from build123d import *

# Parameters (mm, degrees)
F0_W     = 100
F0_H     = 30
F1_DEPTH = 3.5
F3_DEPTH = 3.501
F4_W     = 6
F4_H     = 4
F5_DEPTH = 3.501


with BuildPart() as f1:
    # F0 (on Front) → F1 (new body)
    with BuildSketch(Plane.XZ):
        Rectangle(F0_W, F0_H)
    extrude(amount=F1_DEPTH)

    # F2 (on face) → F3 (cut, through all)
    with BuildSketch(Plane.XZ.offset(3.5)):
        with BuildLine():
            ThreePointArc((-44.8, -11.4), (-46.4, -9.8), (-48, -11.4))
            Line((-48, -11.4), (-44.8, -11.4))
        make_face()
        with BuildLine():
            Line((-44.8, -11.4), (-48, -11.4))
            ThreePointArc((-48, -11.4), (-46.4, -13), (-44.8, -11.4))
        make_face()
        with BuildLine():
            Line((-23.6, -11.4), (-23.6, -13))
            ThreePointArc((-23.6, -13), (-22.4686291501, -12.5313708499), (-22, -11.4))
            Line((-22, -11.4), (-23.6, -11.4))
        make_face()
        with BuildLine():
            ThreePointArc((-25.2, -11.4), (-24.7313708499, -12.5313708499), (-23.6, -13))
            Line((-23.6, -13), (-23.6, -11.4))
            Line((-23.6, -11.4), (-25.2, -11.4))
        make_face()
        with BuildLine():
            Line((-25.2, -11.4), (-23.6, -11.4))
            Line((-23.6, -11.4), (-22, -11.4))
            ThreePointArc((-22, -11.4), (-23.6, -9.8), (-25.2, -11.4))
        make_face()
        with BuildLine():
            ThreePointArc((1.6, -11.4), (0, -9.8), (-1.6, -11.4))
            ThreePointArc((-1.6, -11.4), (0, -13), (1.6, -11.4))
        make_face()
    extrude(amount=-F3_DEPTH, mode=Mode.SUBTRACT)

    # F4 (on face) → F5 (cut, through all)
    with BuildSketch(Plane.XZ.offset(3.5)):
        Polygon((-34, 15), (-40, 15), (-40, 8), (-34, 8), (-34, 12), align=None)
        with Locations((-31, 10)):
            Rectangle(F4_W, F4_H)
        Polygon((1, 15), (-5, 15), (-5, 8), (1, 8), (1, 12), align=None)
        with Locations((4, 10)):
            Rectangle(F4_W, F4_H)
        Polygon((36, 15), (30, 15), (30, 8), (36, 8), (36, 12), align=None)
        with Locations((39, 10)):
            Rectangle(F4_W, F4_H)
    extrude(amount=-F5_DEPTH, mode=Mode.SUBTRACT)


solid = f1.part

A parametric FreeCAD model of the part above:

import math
import FreeCAD as App
import Part
import Sketcher

V = App.Vector

doc = App.newDocument("Part")
body = doc.addObject("PartDesign::Body", "Body")

sketch1 = body.newObject("Sketcher::SketchObject", "Sketch")
sketch1.AttachmentSupport = (doc.getObject("XZ_Plane"), [""])
sketch1.MapMode = "FlatFace"
sketch1.addGeometry(Part.LineSegment(V(-50, 15, 0), V(-50, -15, 0)), False)
sketch1.addGeometry(Part.LineSegment(V(-50, -15, 0), V(50, -15, 0)), False)
sketch1.addGeometry(Part.LineSegment(V(50, -15, 0), V(50, 15, 0)), False)
sketch1.addGeometry(Part.LineSegment(V(50, 15, 0), V(-50, 15, 0)), False)
sketch1.addConstraint(Sketcher.Constraint("Coincident", 0, 2, 1, 1))
sketch1.addConstraint(Sketcher.Constraint("Coincident", 1, 2, 2, 1))
sketch1.addConstraint(Sketcher.Constraint("Coincident", 2, 2, 3, 1))
sketch1.addConstraint(Sketcher.Constraint("Coincident", 3, 2, 0, 1))
sketch1.addConstraint(Sketcher.Constraint("Vertical", 0))
sketch1.addConstraint(Sketcher.Constraint("Horizontal", 1))
sketch1.addConstraint(Sketcher.Constraint("Vertical", 2))
sketch1.addConstraint(Sketcher.Constraint("Horizontal", 3))
sketch1.addConstraint(Sketcher.Constraint("Symmetric", 0, 2, 2, 2, -1, 1))
sketch1.addConstraint(Sketcher.Constraint("DistanceX", 1, 1, 1, 2, 100.0))
sketch1.addConstraint(Sketcher.Constraint("DistanceY", 0, 2, 0, 1, 30.0))
pad1 = body.newObject("PartDesign::Pad", "Pad")
pad1.Profile = sketch1
pad1.Length = 3.5

sketch2 = body.newObject("Sketcher::SketchObject", "Sketch001")
sketch2.AttachmentSupport = (doc.getObject("XZ_Plane"), [""])
sketch2.MapMode = "FlatFace"
sketch2.AttachmentOffset = App.Placement(V(0, 0, 3.5), App.Rotation())
sketch2.addGeometry(Part.Circle(V(-46.4, -11.4, 0), V(0, 0, 1), 1.6), False)
sketch2.addGeometry(Part.ArcOfCircle(Part.Circle(V(-23.6, -11.4, 0), V(0, 0, 1), 1.6), math.radians(-90), math.radians(0)), False)
sketch2.addGeometry(Part.ArcOfCircle(Part.Circle(V(-23.6, -11.4, 0), V(0, 0, 1), 1.6), math.radians(0), math.radians(180)), False)
sketch2.addGeometry(Part.ArcOfCircle(Part.Circle(V(-23.6, -11.4, 0), V(0, 0, 1), 1.6), math.radians(180), math.radians(270)), False)
sketch2.addGeometry(Part.Circle(V(0, -11.4, 0), V(0, 0, 1), 1.6), False)
sketch2.addConstraint(Sketcher.Constraint("Tangent", 1, 2, 2, 1))
sketch2.addConstraint(Sketcher.Constraint("Tangent", 2, 2, 3, 1))
sketch2.addConstraint(Sketcher.Constraint("Tangent", 3, 2, 1, 1))
sketch2.addConstraint(Sketcher.Constraint("Equal", 0, 1))
sketch2.addConstraint(Sketcher.Constraint("Equal", 3, 4))
sketch2.addConstraint(Sketcher.Constraint("PointOnObject", 4, 3, -2))
sketch2.addConstraint(Sketcher.Constraint("Horizontal", 0, 3, 1, 3))
sketch2.addConstraint(Sketcher.Constraint("Horizontal", 3, 3, 4, 3))
sketch2.addConstraint(Sketcher.Constraint("Horizontal", 4, 3, 1, 2))
sketch2.addConstraint(Sketcher.Constraint("Horizontal", 1, 2, 2, 2))
sketch2.addConstraint(Sketcher.Constraint("Vertical", 2, 3, 3, 2))
sketch2.addConstraint(Sketcher.Constraint("Diameter", 0, 3.2))
sketch2.addConstraint(Sketcher.Constraint("DistanceX", 1, 2, -1, 1, 22.0))
sketch2.addConstraint(Sketcher.Constraint("DistanceY", 3, 2, -1, 1, 13.0))
sketch2.addConstraint(Sketcher.Constraint("DistanceX", 0, 3, -1, 1, 46.4))
pocket1 = body.newObject("PartDesign::Pocket", "Pocket")
pocket1.Profile = sketch2
pocket1.Type = "ThroughAll"

sketch3 = body.newObject("Sketcher::SketchObject", "Sketch002")
sketch3.AttachmentSupport = (doc.getObject("XZ_Plane"), [""])
sketch3.MapMode = "FlatFace"
sketch3.AttachmentOffset = App.Placement(V(0, 0, 3.5), App.Rotation())
sketch3.addGeometry(Part.LineSegment(V(-34, 15, 0), V(-40, 15, 0)), False)
sketch3.addGeometry(Part.LineSegment(V(-40, 15, 0), V(-40, 8, 0)), False)
sketch3.addGeometry(Part.LineSegment(V(-40, 8, 0), V(-28, 8, 0)), False)
sketch3.addGeometry(Part.LineSegment(V(-28, 8, 0), V(-28, 12, 0)), False)
sketch3.addGeometry(Part.LineSegment(V(-28, 12, 0), V(-34, 12, 0)), False)
sketch3.addGeometry(Part.LineSegment(V(-34, 12, 0), V(-34, 15, 0)), False)
sketch3.addGeometry(Part.LineSegment(V(1, 15, 0), V(-5, 15, 0)), False)
sketch3.addGeometry(Part.LineSegment(V(-5, 15, 0), V(-5, 8, 0)), False)
sketch3.addGeometry(Part.LineSegment(V(-5, 8, 0), V(7, 8, 0)), False)
sketch3.addGeometry(Part.LineSegment(V(7, 8, 0), V(7, 12, 0)), False)
sketch3.addGeometry(Part.LineSegment(V(7, 12, 0), V(1, 12, 0)), False)
sketch3.addGeometry(Part.LineSegment(V(1, 12, 0), V(1, 15, 0)), False)
sketch3.addGeometry(Part.LineSegment(V(36, 15, 0), V(30, 15, 0)), False)
sketch3.addGeometry(Part.LineSegment(V(30, 15, 0), V(30, 8, 0)), False)
sketch3.addGeometry(Part.LineSegment(V(30, 8, 0), V(42, 8, 0)), False)
sketch3.addGeometry(Part.LineSegment(V(42, 8, 0), V(42, 12, 0)), False)
sketch3.addGeometry(Part.LineSegment(V(42, 12, 0), V(36, 12, 0)), False)
sketch3.addGeometry(Part.LineSegment(V(36, 12, 0), V(36, 15, 0)), False)
sketch3.addConstraint(Sketcher.Constraint("Coincident", 0, 2, 1, 1))
sketch3.addConstraint(Sketcher.Constraint("Coincident", 1, 2, 2, 1))
sketch3.addConstraint(Sketcher.Constraint("Coincident", 2, 2, 3, 1))
sketch3.addConstraint(Sketcher.Constraint("Coincident", 3, 2, 4, 1))
sketch3.addConstraint(Sketcher.Constraint("Coincident", 4, 2, 5, 1))
sketch3.addConstraint(Sketcher.Constraint("Coincident", 5, 2, 0, 1))
sketch3.addConstraint(Sketcher.Constraint("Coincident", 6, 2, 7, 1))
sketch3.addConstraint(Sketcher.Constraint("Coincident", 7, 2, 8, 1))
sketch3.addConstraint(Sketcher.Constraint("Coincident", 8, 2, 9, 1))
sketch3.addConstraint(Sketcher.Constraint("Coincident", 9, 2, 10, 1))
sketch3.addConstraint(Sketcher.Constraint("Coincident", 10, 2, 11, 1))
sketch3.addConstraint(Sketcher.Constraint("Coincident", 11, 2, 6, 1))
sketch3.addConstraint(Sketcher.Constraint("Coincident", 12, 2, 13, 1))
sketch3.addConstraint(Sketcher.Constraint("Coincident", 13, 2, 14, 1))
sketch3.addConstraint(Sketcher.Constraint("Coincident", 14, 2, 15, 1))
sketch3.addConstraint(Sketcher.Constraint("Coincident", 15, 2, 16, 1))
sketch3.addConstraint(Sketcher.Constraint("Coincident", 16, 2, 17, 1))
sketch3.addConstraint(Sketcher.Constraint("Coincident", 17, 2, 12, 1))
sketch3.addConstraint(Sketcher.Constraint("Horizontal", 0))
sketch3.addConstraint(Sketcher.Constraint("Vertical", 1))
sketch3.addConstraint(Sketcher.Constraint("Horizontal", 2))
sketch3.addConstraint(Sketcher.Constraint("Vertical", 3))
sketch3.addConstraint(Sketcher.Constraint("Horizontal", 4))
sketch3.addConstraint(Sketcher.Constraint("Vertical", 5))
sketch3.addConstraint(Sketcher.Constraint("Horizontal", 6))
sketch3.addConstraint(Sketcher.Constraint("Vertical", 7))
sketch3.addConstraint(Sketcher.Constraint("Horizontal", 8))
sketch3.addConstraint(Sketcher.Constraint("Vertical", 9))
sketch3.addConstraint(Sketcher.Constraint("Horizontal", 10))
sketch3.addConstraint(Sketcher.Constraint("Vertical", 11))
sketch3.addConstraint(Sketcher.Constraint("Horizontal", 12))
sketch3.addConstraint(Sketcher.Constraint("Vertical", 13))
sketch3.addConstraint(Sketcher.Constraint("Horizontal", 14))
sketch3.addConstraint(Sketcher.Constraint("Vertical", 15))
sketch3.addConstraint(Sketcher.Constraint("Horizontal", 16))
sketch3.addConstraint(Sketcher.Constraint("Vertical", 17))
sketch3.addConstraint(Sketcher.Constraint("Horizontal", 5, 2, 6, 2))
sketch3.addConstraint(Sketcher.Constraint("Horizontal", 2, 2, 7, 2))
sketch3.addConstraint(Sketcher.Constraint("Horizontal", 4, 2, 9, 2))
sketch3.addConstraint(Sketcher.Constraint("Horizontal", 11, 2, 12, 2))
sketch3.addConstraint(Sketcher.Constraint("Horizontal", 8, 2, 13, 2))
sketch3.addConstraint(Sketcher.Constraint("Horizontal", 10, 2, 15, 2))
sketch3.addConstraint(Sketcher.Constraint("Equal", 0, 4))
sketch3.addConstraint(Sketcher.Constraint("Equal", 4, 6))
sketch3.addConstraint(Sketcher.Constraint("Equal", 2, 8))
sketch3.addConstraint(Sketcher.Constraint("Equal", 10, 12))
sketch3.addConstraint(Sketcher.Constraint("Equal", 8, 14))
sketch3.addConstraint(Sketcher.Constraint("DistanceX", 0, 2, 0, 1, 6.0))
sketch3.addConstraint(Sketcher.Constraint("DistanceY", 1, 2, 1, 1, 7.0))
sketch3.addConstraint(Sketcher.Constraint("DistanceY", 3, 1, 3, 2, 4.0))
sketch3.addConstraint(Sketcher.Constraint("DistanceX", 0, 2, -1, 1, 40.0))
sketch3.addConstraint(Sketcher.Constraint("DistanceY", -1, 1, 0, 2, 15.0))
sketch3.addConstraint(Sketcher.Constraint("DistanceX", 6, 2, -1, 1, 5.0))
sketch3.addConstraint(Sketcher.Constraint("DistanceX", -1, 1, 12, 2, 30.0))
pocket2 = body.newObject("PartDesign::Pocket", "Pocket001")
pocket2.Profile = sketch3
pocket2.Type = "ThroughAll"

doc.recompute()
